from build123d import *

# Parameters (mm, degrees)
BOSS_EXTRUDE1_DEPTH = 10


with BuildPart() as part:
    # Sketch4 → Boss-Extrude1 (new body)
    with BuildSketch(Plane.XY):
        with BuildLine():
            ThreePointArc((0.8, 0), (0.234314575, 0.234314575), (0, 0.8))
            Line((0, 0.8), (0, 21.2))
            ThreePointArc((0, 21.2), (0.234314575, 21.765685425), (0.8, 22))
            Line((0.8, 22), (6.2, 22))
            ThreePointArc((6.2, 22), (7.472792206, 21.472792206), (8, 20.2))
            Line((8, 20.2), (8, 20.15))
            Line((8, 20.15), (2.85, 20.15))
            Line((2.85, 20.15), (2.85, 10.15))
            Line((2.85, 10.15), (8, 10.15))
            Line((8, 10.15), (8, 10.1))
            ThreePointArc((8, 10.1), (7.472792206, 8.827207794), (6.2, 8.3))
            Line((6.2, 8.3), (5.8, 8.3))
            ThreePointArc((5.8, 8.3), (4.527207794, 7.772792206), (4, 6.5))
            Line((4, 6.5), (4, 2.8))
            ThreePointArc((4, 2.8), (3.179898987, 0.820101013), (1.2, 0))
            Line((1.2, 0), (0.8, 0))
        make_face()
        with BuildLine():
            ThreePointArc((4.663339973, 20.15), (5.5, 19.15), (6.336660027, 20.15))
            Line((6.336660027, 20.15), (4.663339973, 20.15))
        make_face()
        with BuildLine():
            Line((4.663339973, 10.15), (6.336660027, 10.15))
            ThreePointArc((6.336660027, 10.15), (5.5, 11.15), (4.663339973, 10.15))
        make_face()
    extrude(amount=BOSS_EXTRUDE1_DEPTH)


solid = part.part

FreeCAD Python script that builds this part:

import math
import FreeCAD as App
import Part
import Sketcher
from FreeCAD import Vector

doc = App.newDocument("Part")
params = doc.addObject("Spreadsheet::Sheet", "Params")
for row, (alias, value) in enumerate([
    ("sketch1_radius", "0.8 mm"),
    ("sketch1_radius2", "2.8 mm"),
    ("sketch1_radius3", "1.8 mm"),
    ("sketch1_height", "10 mm"),
    ("sketch1_radius4", "0.85 mm"),
    ("pad1_length", "10 mm"),
], start=1):
    params.set(f"A{row}", alias)
    params.set(f"B{row}", "=" + value)
    params.setAlias(f"B{row}", alias)

body = doc.addObject("PartDesign::Body", "Body")

# Sketch on XY plane
sketch1 = body.newObject("Sketcher::SketchObject", "Sketch")
sketch1.AttachmentSupport = (doc.getObject("XY_Plane"), [""])
sketch1.MapMode = "FlatFace"
sketch1.addGeometry(Part.ArcOfCircle(Part.Circle(Vector(0.8, 0.8, 0), Vector(0, 0, 1), 0.8), math.radians(180), math.radians(270)), False)
sketch1.addGeometry(Part.LineSegment(Vector(0.8, 0, 0), Vector(1.2, 0, 0)), False)
sketch1.addGeometry(Part.ArcOfCircle(Part.Circle(Vector(1.2, 2.8, 0), Vector(0, 0, 1), 2.8), math.radians(-90), math.radians(0)), False)
sketch1.addGeometry(Part.LineSegment(Vector(4, 2.8, 0), Vector(4, 6.5, 0)), False)
sketch1.addGeometry(Part.ArcOfCircle(Part.Circle(Vector(5.8, 6.5, 0), Vector(0, 0, 1), 1.8), math.radians(90), math.radians(180)), False)
sketch1.addGeometry(Part.LineSegment(Vector(5.8, 8.3, 0), Vector(6.2, 8.3, 0)), False)
sketch1.addGeometry(Part.ArcOfCircle(Part.Circle(Vector(6.2, 10.1, 0), Vector(0, 0, 1), 1.8), math.radians(-90), math.radians(0)), False)
sketch1.addGeometry(Part.LineSegment(Vector(8, 10.1, 0), Vector(8, 10.15, 0)), False)
sketch1.addGeometry(Part.LineSegment(Vector(8, 10.15, 0), Vector(6.34, 10.15, 0)), False)
sketch1.addGeometry(Part.ArcOfCircle(Part.Circle(Vector(5.5, 10.3, 0), Vector(0, 0, 1), 0.85), math.radians(-10), math.radians(190)), False)
sketch1.addGeometry(Part.LineSegment(Vector(4.66, 10.15, 0), Vector(2.85, 10.15, 0)), False)
sketch1.addGeometry(Part.LineSegment(Vector(2.85, 10.15, 0), Vector(2.85, 20.15, 0)), False)
sketch1.addGeometry(Part.LineSegment(Vector(2.85, 20.15, 0), Vector(4.66, 20.15, 0)), False)
sketch1.addGeometry(Part.ArcOfCircle(Part.Circle(Vector(5.5, 20, 0), Vector(0, 0, 1), 0.85), math.radians(170), math.radians(370)), False)
sketch1.addGeometry(Part.LineSegment(Vector(6.34, 20.15, 0), Vector(8, 20.15, 0)), False)
sketch1.addGeometry(Part.LineSegment(Vector(8, 20.15, 0), Vector(8, 20.2, 0)), False)
sketch1.addGeometry(Part.ArcOfCircle(Part.Circle(Vector(6.2, 20.2, 0), Vector(0, 0, 1), 1.8), math.radians(0), math.radians(90)), False)
sketch1.addGeometry(Part.LineSegment(Vector(6.2, 22, 0), Vector(0.8, 22, 0)), False)
sketch1.addGeometry(Part.ArcOfCircle(Part.Circle(Vector(0.8, 21.2, 0), Vector(0, 0, 1), 0.8), math.radians(90), math.radians(180)), False)
sketch1.addGeometry(Part.LineSegment(Vector(0, 21.2, 0), Vector(0, 0.8, 0)), False)
sketch1.addConstraint(Sketcher.Constraint("Tangent", 0, 2, 1, 1))
sketch1.addConstraint(Sketcher.Constraint("Tangent", 1, 2, 2, 1))
sketch1.addConstraint(Sketcher.Constraint("Tangent", 2, 2, 3, 1))
sketch1.addConstraint(Sketcher.Constraint("Tangent", 3, 2, 4, 2))
sketch1.addConstraint(Sketcher.Constraint("Tangent", 4, 1, 5, 1))
sketch1.addConstraint(Sketcher.Constraint("Tangent", 5, 2, 6, 1))
sketch1.addConstraint(Sketcher.Constraint("Tangent", 6, 2, 7, 1))
sketch1.addConstraint(Sketcher.Constraint("Coincident", 7, 2, 8, 1))
sketch1.addConstraint(Sketcher.Constraint("Coincident", 8, 2, 9, 1))
sketch1.addConstraint(Sketcher.Constraint("Coincident", 9, 2, 10, 1))
sketch1.addConstraint(Sketcher.Constraint("Coincident", 10, 2, 11, 1))
sketch1.addConstraint(Sketcher.Constraint("Coincident", 11, 2, 12, 1))
sketch1.addConstraint(Sketcher.Constraint("Coincident", 12, 2, 13, 1))
sketch1.addConstraint(Sketcher.Constraint("Coincident", 13, 2, 14, 1))
sketch1.addConstraint(Sketcher.Constraint("Coincident", 14, 2, 15, 1))
sketch1.addConstraint(Sketcher.Constraint("Tangent", 15, 2, 16, 1))
sketch1.addConstraint(Sketcher.Constraint("Tangent", 16, 2, 17, 1))
sketch1.addConstraint(Sketcher.Constraint("Tangent", 17, 2, 18, 1))
sketch1.addConstraint(Sketcher.Constraint("Tangent", 18, 2, 19, 1))
sketch1.addConstraint(Sketcher.Constraint("Tangent", 19, 2, 0, 1))
sketch1.addConstraint(Sketcher.Constraint("Horizontal", 1))
sketch1.addConstraint(Sketcher.Constraint("Vertical", 3))
sketch1.addConstraint(Sketcher.Constraint("Horizontal", 5))
sketch1.addConstraint(Sketcher.Constraint("Vertical", 7))
sketch1.addConstraint(Sketcher.Constraint("Horizontal", 8))
sketch1.addConstraint(Sketcher.Constraint("Horizontal", 10))
sketch1.addConstraint(Sketcher.Constraint("Vertical", 11))
sketch1.addConstraint(Sketcher.Constraint("Horizontal", 12))
sketch1.addConstraint(Sketcher.Constraint("Horizontal", 14))
sketch1.addConstraint(Sketcher.Constraint("Vertical", 15))
sketch1.addConstraint(Sketcher.Constraint("Horizontal", 17))
sketch1.addConstraint(Sketcher.Constraint("Vertical", 19))
sketch1.addConstraint(Sketcher.Constraint("Equal", 4, 6))
sketch1.addConstraint(Sketcher.Constraint("Equal", 9, 13))
sketch1.addConstraint(Sketcher.Constraint("Equal", 6, 16))
sketch1.addConstraint(Sketcher.Constraint("Equal", 0, 18))
sketch1.addConstraint(Sketcher.Constraint("PointOnObject", 0, 2, -1))
sketch1.addConstraint(Sketcher.Constraint("PointOnObject", 18, 2, -2))
sketch1.addConstraint(Sketcher.Constraint("Horizontal", 8, 2, 9, 2))
sketch1.addConstraint(Sketcher.Constraint("Horizontal", 12, 2, 13, 2))
sketch1.addConstraint(Sketcher.Constraint("Vertical", 9, 3, 13, 3))
sketch1.addConstraint(Sketcher.Constraint("Vertical", 6, 3, 16, 3))
sketch1.addConstraint(Sketcher.Constraint("Vertical", 9, 2, 12, 2))
sketch1.addConstraint(Sketcher.Constraint("Equal", 1, 5))
sketch1.addConstraint(Sketcher.Constraint("Equal", 7, 15))
sketch1.addConstraint(Sketcher.Constraint("Radius", 0, 0.8))
sketch1.addConstraint(Sketcher.Constraint("Radius", 2, 2.8))
sketch1.addConstraint(Sketcher.Constraint("Radius", 4, 1.8))
sketch1.addConstraint(Sketcher.Constraint("DistanceY", 11, 1, 11, 2, 10.0))
sketch1.addConstraint(Sketcher.Constraint("Radius", 9, 0.85))
sketch1.addConstraint(Sketcher.Constraint("DistanceX", 1, 1, 1, 2, 0.4))
sketch1.addConstraint(Sketcher.Constraint("DistanceY", 3, 1, 3, 2, 3.7))
sketch1.addConstraint(Sketcher.Constraint("DistanceY", 19, 2, 19, 1, 20.4))
sketch1.addConstraint(Sketcher.Constraint("DistanceY", -1, 1, 13, 3, 20.0))
sketch1.addConstraint(Sketcher.Constraint("DistanceX", -1, 1, 9, 3, 5.5))
sketch1.addConstraint(Sketcher.Constraint("DistanceX", -1, 1, 10, 2, 2.85))
sketch1.setExpression("Constraints[45]", "Params.sketch1_radius")
sketch1.setExpression("Constraints[46]", "Params.sketch1_radius2")
sketch1.setExpression("Constraints[47]", "Params.sketch1_radius3")
sketch1.setExpression("Constraints[48]", "Params.sketch1_height")
sketch1.setExpression("Constraints[49]", "Params.sketch1_radius4")
pad1 = body.newObject("PartDesign::Pad", "Pad")
pad1.Profile = sketch1
pad1.setExpression("Length", "Params.pad1_length")

doc.recompute()
